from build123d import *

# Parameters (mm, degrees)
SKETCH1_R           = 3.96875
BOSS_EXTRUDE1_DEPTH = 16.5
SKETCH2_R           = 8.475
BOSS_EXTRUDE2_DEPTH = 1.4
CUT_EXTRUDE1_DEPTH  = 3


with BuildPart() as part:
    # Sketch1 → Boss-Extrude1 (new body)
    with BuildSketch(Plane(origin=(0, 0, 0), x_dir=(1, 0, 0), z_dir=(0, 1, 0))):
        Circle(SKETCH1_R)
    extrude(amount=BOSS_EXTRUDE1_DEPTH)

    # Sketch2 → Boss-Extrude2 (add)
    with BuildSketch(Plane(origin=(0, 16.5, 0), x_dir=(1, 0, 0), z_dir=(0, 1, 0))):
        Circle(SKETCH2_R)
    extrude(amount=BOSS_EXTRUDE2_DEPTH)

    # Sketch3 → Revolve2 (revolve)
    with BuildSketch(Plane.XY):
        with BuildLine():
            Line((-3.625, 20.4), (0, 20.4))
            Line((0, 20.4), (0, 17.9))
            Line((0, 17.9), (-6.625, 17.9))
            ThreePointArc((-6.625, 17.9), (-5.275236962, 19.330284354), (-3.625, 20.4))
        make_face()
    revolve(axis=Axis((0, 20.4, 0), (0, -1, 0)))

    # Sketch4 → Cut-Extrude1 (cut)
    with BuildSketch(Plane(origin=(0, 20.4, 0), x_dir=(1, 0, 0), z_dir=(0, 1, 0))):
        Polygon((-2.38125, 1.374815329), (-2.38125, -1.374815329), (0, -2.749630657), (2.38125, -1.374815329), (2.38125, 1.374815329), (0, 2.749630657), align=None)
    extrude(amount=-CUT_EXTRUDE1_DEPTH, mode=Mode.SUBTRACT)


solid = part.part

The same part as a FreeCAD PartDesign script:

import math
import FreeCAD as App
import Part
import Sketcher
from FreeCAD import Vector
Q = App.Units.Quantity


def add_polygon(sketch, points):
    """Adds a closed chain of lines whose ends are joined by coincident constraints."""
    first, n = sketch.GeometryCount, len(points)
    for a, b in zip(points, points[1:] + points[:1]):
        sketch.addGeometry(Part.LineSegment(App.Vector(*a, 0), App.Vector(*b, 0)), False)
    for i in range(n):
        sketch.addConstraint(Sketcher.Constraint("Coincident", first + i, 2, first + (i + 1) % n, 1))

doc = App.newDocument("Part")
params = doc.addObject("Spreadsheet::Sheet", "Params")
for row, (alias, value) in enumerate([
    ("pad1_length", "16.5 mm"),
    ("sketch2_diameter", "16.95 mm"),
    ("pad2_length", "1.4 mm"),
    ("sketch3_height", "2.5 mm"),
    ("revolution_angle", "360 deg"),
    ("pocket1_length", "3 mm"),
], start=1):
    params.set(f"A{row}", alias)
    params.set(f"B{row}", "=" + value)
    params.setAlias(f"B{row}", alias)

body = doc.addObject("PartDesign::Body", "Body")

# Sketch on XZ plane
sketch1 = body.newObject("Sketcher::SketchObject", "Sketch")
sketch1.AttachmentSupport = (doc.getObject("XZ_Plane"), [""])
sketch1.MapMode = "FlatFace"
sketch1.addGeometry(Part.Circle(Vector(0, 0, 0), Vector(0, 0, 1), 4), False)
sketch1.addConstraint([
    Sketcher.Constraint("Coincident", 0, 3, -1, 1),
    Sketcher.Constraint("Diameter", 0, Q("7.9375 mm")),
])
pad1 = body.newObject("PartDesign::Pad", "Pad")
pad1.Profile = sketch1
pad1.setExpression("Length", "Params.pad1_length")
pad1.Reversed = True

# Sketch on XZ plane
sketch2 = body.newObject("Sketcher::SketchObject", "Sketch001")
sketch2.AttachmentSupport = (doc.getObject("XZ_Plane"), [""])
sketch2.MapMode = "FlatFace"
sketch2.AttachmentOffset = App.Placement(Vector(0, 0, -16.5), App.Rotation())
sketch2.addGeometry(Part.Circle(Vector(0, 0, 0), Vector(0, 0, 1), 8), False)
sketch2.addConstraint([
    Sketcher.Constraint("Coincident", 0, 3, -1, 1),
    Sketcher.Constraint("Diameter", 0, Q("16.95 mm")),
])
sketch2.setExpression("Constraints[1]", "Params.sketch2_diameter")
pad2 = body.newObject("PartDesign::Pad", "Pad001")
pad2.Profile = sketch2
pad2.setExpression("Length", "Params.pad2_length")
pad2.Reversed = True

# Sketch on XY plane
sketch3 = body.newObject("Sketcher::SketchObject", "Sketch002")
sketch3.AttachmentSupport = (doc.getObject("XY_Plane"), [""])
sketch3.MapMode = "FlatFace"
sketch3.addGeometry([
    Part.LineSegment(Vector(0, 20.4, 0), Vector(-3.6, 20.4, 0)),
    Part.ArcOfCircle(Part.Circle(Vector(0, 13, 0), Vector(0, 0, 1), 8.2), math.radians(116), math.radians(144)),
    Part.LineSegment(Vector(-6.6, 17.9, 0), Vector(0, 17.9, 0)),
    Part.LineSegment(Vector(0, 17.9, 0), Vector(0, 20.4, 0)),
], False)
sketch3.addConstraint([
    Sketcher.Constraint("Coincident", 0, 2, 1, 1),
    Sketcher.Constraint("Coincident", 1, 2, 2, 1),
    Sketcher.Constraint("Coincident", 2, 2, 3, 1),
    Sketcher.Constraint("Coincident", 3, 2, 0, 1),
    Sketcher.Constraint("Horizontal", 0),
    Sketcher.Constraint("Horizontal", 2),
    Sketcher.Constraint("Vertical", 3),
    Sketcher.Constraint("PointOnObject", 1, 3, -2),
    Sketcher.Constraint("PointOnObject", 2, 2, -2),
    Sketcher.Constraint("DistanceY", 3, 1, 3, 2, Q("2.5 mm")),
    Sketcher.Constraint("DistanceY", -1, 1, 1, 3, Q("13 mm")),
    Sketcher.Constraint("DistanceX", 1, 2, 0, 2, Q("3 mm")),
    Sketcher.Constraint("DistanceY", -1, 1, 0, 2, Q("20.4 mm")),
])
sketch3.setExpression("Constraints[9]", "Params.sketch3_height")
revolution = body.newObject("PartDesign::Revolution", "Revolution")
revolution.Profile = sketch3
revolution.ReferenceAxis = (sketch3, ["V_Axis"])
revolution.setExpression("Angle", "Params.revolution_angle")

# Sketch on XZ plane
sketch4 = body.newObject("Sketcher::SketchObject", "Sketch003")
sketch4.AttachmentSupport = (doc.getObject("XZ_Plane"), [""])
sketch4.MapMode = "FlatFace"
sketch4.AttachmentOffset = App.Placement(Vector(0, 0, -20.4), App.Rotation())
add_polygon(sketch4, [(-2.4, -1.4), (-2.4, 1.4), (0, 2.7), (2.4, 1.4), (2.4, -1.4), (0, -2.7)])  # lines 0-5
sketch4.addConstraint([
    Sketcher.Constraint("Vertical", 0),
    Sketcher.Constraint("Vertical", 3),
    Sketcher.Constraint("Symmetric", 0, 2, 3, 2, -1, 1),
    Sketcher.Constraint("Symmetric", 1, 2, 4, 2, -1, 1),
    Sketcher.Constraint("PointOnObject", 1, 2, -2),
    Sketcher.Constraint("Parallel", 2, 5),
    Sketcher.Constraint("Horizontal", 0, 2, 2, 2),
    Sketcher.Constraint("Angle", 1, Q("30 deg")),
    Sketcher.Constraint("DistanceY", 0, 1, 0, 2, Q("2.749631 mm")),
    Sketcher.Constraint("DistanceX", 0, 2, 2, 2, Q("4.7625 mm")),
])
pocket1 = body.newObject("PartDesign::Pocket", "Pocket")
pocket1.Profile = sketch4
pocket1.setExpression("Length", "Params.pocket1_length")
pocket1.Reversed = True

doc.recompute()
